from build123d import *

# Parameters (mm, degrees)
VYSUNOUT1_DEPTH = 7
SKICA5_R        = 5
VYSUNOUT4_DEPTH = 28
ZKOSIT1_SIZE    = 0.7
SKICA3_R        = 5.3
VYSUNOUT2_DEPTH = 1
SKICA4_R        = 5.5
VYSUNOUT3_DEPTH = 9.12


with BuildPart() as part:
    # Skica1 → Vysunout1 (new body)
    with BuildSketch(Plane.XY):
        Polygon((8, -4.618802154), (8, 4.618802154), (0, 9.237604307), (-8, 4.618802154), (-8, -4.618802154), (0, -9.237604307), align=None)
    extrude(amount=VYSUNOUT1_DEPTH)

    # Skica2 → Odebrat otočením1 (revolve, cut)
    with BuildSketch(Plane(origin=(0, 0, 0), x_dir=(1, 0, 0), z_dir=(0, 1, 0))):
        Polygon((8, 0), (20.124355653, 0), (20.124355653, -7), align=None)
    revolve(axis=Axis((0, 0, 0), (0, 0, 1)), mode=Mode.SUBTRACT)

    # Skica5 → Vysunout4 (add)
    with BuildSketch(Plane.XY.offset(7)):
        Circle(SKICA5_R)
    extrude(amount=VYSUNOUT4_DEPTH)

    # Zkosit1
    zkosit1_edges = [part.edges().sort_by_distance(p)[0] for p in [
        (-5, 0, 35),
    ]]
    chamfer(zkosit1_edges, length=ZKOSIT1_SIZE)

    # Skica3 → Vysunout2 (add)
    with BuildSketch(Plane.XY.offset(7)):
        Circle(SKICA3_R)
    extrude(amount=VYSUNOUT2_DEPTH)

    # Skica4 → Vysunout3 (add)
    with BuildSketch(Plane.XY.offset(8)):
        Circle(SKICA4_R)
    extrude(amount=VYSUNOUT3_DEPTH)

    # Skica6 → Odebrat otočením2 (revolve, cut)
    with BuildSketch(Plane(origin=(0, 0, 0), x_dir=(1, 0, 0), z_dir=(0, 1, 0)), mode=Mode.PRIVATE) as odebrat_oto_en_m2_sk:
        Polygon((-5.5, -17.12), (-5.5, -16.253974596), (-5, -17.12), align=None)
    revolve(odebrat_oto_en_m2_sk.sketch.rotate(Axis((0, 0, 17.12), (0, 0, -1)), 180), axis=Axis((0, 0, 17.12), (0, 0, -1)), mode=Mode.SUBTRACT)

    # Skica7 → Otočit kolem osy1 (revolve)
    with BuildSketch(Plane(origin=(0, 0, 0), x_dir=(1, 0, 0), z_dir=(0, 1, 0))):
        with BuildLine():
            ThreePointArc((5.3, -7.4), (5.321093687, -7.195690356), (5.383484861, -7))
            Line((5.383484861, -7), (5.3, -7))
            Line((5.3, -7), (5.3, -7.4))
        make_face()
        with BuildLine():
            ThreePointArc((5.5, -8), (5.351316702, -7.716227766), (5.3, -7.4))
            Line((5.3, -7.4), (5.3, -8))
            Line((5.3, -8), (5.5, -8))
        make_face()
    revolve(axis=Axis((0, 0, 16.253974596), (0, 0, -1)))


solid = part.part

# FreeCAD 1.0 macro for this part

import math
import FreeCAD as App
import Part
import Sketcher
Q = App.Units.Quantity


def edges_at(feature, points):
    """Names of the edges that pass closest to the given points."""
    edges = feature.Shape.Edges
    near = lambda p: min(range(len(edges)), key=lambda i: edges[i].distToShape(Part.Vertex(*p))[0])
    return sorted({f"Edge{near(p) + 1}" for p in points})

doc = App.newDocument("Part")
body = doc.addObject("PartDesign::Body", "Body")

# Sketch on XY plane
sketch1 = body.newObject("Sketcher::SketchObject", "Sketch")
sketch1.AttachmentSupport = (doc.getObject("XY_Plane"), [""])
sketch1.MapMode = "FlatFace"
sketch1.addGeometry(Part.LineSegment(App.Vector(8, -5, 0), App.Vector(8, 5, 0)), False)
sketch1.addGeometry(Part.LineSegment(App.Vector(8, 5, 0), App.Vector(0, 9, 0)), False)
sketch1.addGeometry(Part.LineSegment(App.Vector(0, 9, 0), App.Vector(-8, 5, 0)), False)
sketch1.addGeometry(Part.LineSegment(App.Vector(-8, 5, 0), App.Vector(-8, -5, 0)), False)
sketch1.addGeometry(Part.LineSegment(App.Vector(-8, -5, 0), App.Vector(0, -9, 0)), False)
sketch1.addGeometry(Part.LineSegment(App.Vector(0, -9, 0), App.Vector(8, -5, 0)), False)
sketch1.addConstraint(Sketcher.Constraint("Coincident", 0, 2, 1, 1))
sketch1.addConstraint(Sketcher.Constraint("Coincident", 1, 2, 2, 1))
sketch1.addConstraint(Sketcher.Constraint("Coincident", 2, 2, 3, 1))
sketch1.addConstraint(Sketcher.Constraint("Coincident", 3, 2, 4, 1))
sketch1.addConstraint(Sketcher.Constraint("Coincident", 4, 2, 5, 1))
sketch1.addConstraint(Sketcher.Constraint("Coincident", 5, 2, 0, 1))
sketch1.addConstraint(Sketcher.Constraint("Vertical", 0))
sketch1.addConstraint(Sketcher.Constraint("Vertical", 3))
sketch1.addConstraint(Sketcher.Constraint("Symmetric", 0, 2, 3, 2, -1, 1))
sketch1.addConstraint(Sketcher.Constraint("Symmetric", 1, 2, 4, 2, -1, 1))
sketch1.addConstraint(Sketcher.Constraint("PointOnObject", 1, 2, -2))
sketch1.addConstraint(Sketcher.Constraint("Parallel", 2, 5))
sketch1.addConstraint(Sketcher.Constraint("Horizontal", 0, 2, 2, 2))
sketch1.addConstraint(Sketcher.Constraint("Angle", 1, Q("150 deg")))
sketch1.addConstraint(Sketcher.Constraint("DistanceX", -1, 1, 0, 2, 8.0))
sketch1.addConstraint(Sketcher.Constraint("DistanceY", 0, 1, 0, 2, 9.237604))
pad1 = body.newObject("PartDesign::Pad", "Pad")
pad1.Profile = sketch1
pad1.Length = 7

# Sketch on XZ plane
sketch2 = body.newObject("Sketcher::SketchObject", "Sketch001")
sketch2.AttachmentSupport = (doc.getObject("XZ_Plane"), [""])
sketch2.MapMode = "FlatFace"
sketch2.addGeometry(Part.LineSegment(App.Vector(20, 0, 0), App.Vector(8, 0, 0)), False)
sketch2.addGeometry(Part.LineSegment(App.Vector(8, 0, 0), App.Vector(20, 7, 0)), False)
sketch2.addGeometry(Part.LineSegment(App.Vector(20, 7, 0), App.Vector(20, 0, 0)), False)
sketch2.addConstraint(Sketcher.Constraint("Coincident", 0, 2, 1, 1))
sketch2.addConstraint(Sketcher.Constraint("Coincident", 1, 2, 2, 1))
sketch2.addConstraint(Sketcher.Constraint("Coincident", 2, 2, 0, 1))
sketch2.addConstraint(Sketcher.Constraint("Horizontal", 0))
sketch2.addConstraint(Sketcher.Constraint("Vertical", 2))
sketch2.addConstraint(Sketcher.Constraint("PointOnObject", 0, 2, -1))
sketch2.addConstraint(Sketcher.Constraint("DistanceY", 2, 2, 2, 1, 7.0))
sketch2.addConstraint(Sketcher.Constraint("Angle", 1, Q("30 deg")))
sketch2.addConstraint(Sketcher.Constraint("DistanceX", -1, 1, 0, 2, 8.0))
groove = body.newObject("PartDesign::Groove", "Groove")
groove.Profile = sketch2
groove.ReferenceAxis = (sketch2, ["V_Axis"])
groove.Angle = 360

# Sketch on XY plane
sketch3 = body.newObject("Sketcher::SketchObject", "Sketch002")
sketch3.AttachmentSupport = (doc.getObject("XY_Plane"), [""])
sketch3.MapMode = "FlatFace"
sketch3.AttachmentOffset = App.Placement(App.Vector(0, 0, 7), App.Rotation())
sketch3.addGeometry(Part.Circle(App.Vector(0, 0, 0), App.Vector(0, 0, 1), 5), False)
sketch3.addConstraint(Sketcher.Constraint("Coincident", 0, 3, -1, 1))
sketch3.addConstraint(Sketcher.Constraint("Diameter", 0, 10.0))
pad2 = body.newObject("PartDesign::Pad", "Pad001")
pad2.Profile = sketch3
pad2.Length = 28
doc.recompute()

chamfer = body.newObject("PartDesign::Chamfer", "Chamfer")
chamfer.Base = (pad2, edges_at(pad2, [(-5, 0, 35)]))
chamfer.Size = 0.7

# Sketch on XY plane
sketch4 = body.newObject("Sketcher::SketchObject", "Sketch003")
sketch4.AttachmentSupport = (doc.getObject("XY_Plane"), [""])
sketch4.MapMode = "FlatFace"
sketch4.AttachmentOffset = App.Placement(App.Vector(0, 0, 7), App.Rotation())
sketch4.addGeometry(Part.Circle(App.Vector(0, 0, 0), App.Vector(0, 0, 1), 5), False)
sketch4.addConstraint(Sketcher.Constraint("Coincident", 0, 3, -1, 1))
sketch4.addConstraint(Sketcher.Constraint("Diameter", 0, 10.6))
pad3 = body.newObject("PartDesign::Pad", "Pad002")
pad3.Profile = sketch4
pad3.Length = 1

# Sketch on XY plane
sketch5 = body.newObject("Sketcher::SketchObject", "Sketch004")
sketch5.AttachmentSupport = (doc.getObject("XY_Plane"), [""])
sketch5.MapMode = "FlatFace"
sketch5.AttachmentOffset = App.Placement(App.Vector(0, 0, 8), App.Rotation())
sketch5.addGeometry(Part.Circle(App.Vector(0, 0, 0), App.Vector(0, 0, 1), 6), False)
sketch5.addConstraint(Sketcher.Constraint("Coincident", 0, 3, -1, 1))
sketch5.addConstraint(Sketcher.Constraint("Diameter", 0, 11.0))
pad4 = body.newObject("PartDesign::Pad", "Pad003")
pad4.Profile = sketch5
pad4.Length = 9.12

# Sketch on XZ plane
sketch6 = body.newObject("Sketcher::SketchObject", "Sketch005")
sketch6.AttachmentSupport = (doc.getObject("XZ_Plane"), [""])
sketch6.MapMode = "FlatFace"
sketch6.addGeometry(Part.LineSegment(App.Vector(-5.5, 16.3, 0), App.Vector(-5.5, 17.1, 0)), False)
sketch6.addGeometry(Part.LineSegment(App.Vector(-5.5, 17.1, 0), App.Vector(-5, 17.1, 0)), False)
sketch6.addGeometry(Part.LineSegment(App.Vector(-5, 17.1, 0), App.Vector(-5.5, 16.3, 0)), False)
sketch6.addConstraint(Sketcher.Constraint("Coincident", 0, 2, 1, 1))
sketch6.addConstraint(Sketcher.Constraint("Coincident", 1, 2, 2, 1))
sketch6.addConstraint(Sketcher.Constraint("Coincident", 2, 2, 0, 1))
sketch6.addConstraint(Sketcher.Constraint("Vertical", 0))
sketch6.addConstraint(Sketcher.Constraint("Horizontal", 1))
sketch6.addConstraint(Sketcher.Constraint("Angle", 2, Q("-120 deg")))
sketch6.addConstraint(Sketcher.Constraint("Distance", 2, 1.0))
sketch6.addConstraint(Sketcher.Constraint("DistanceX", 1, 2, -1, 1, 5.0))
sketch6.addConstraint(Sketcher.Constraint("DistanceY", -1, 1, 0, 2, 17.12))
groove2 = body.newObject("PartDesign::Groove", "Groove001")
groove2.Profile = sketch6
groove2.ReferenceAxis = (sketch6, ["V_Axis"])
groove2.Angle = 360

# Sketch on XZ plane
sketch7 = body.newObject("Sketcher::SketchObject", "Sketch006")
sketch7.AttachmentSupport = (doc.getObject("XZ_Plane"), [""])
sketch7.MapMode = "FlatFace"
sketch7.addGeometry(Part.ArcOfCircle(Part.Circle(App.Vector(6.3, 7.4, 0), App.Vector(0, 0, 1), 1), math.radians(180), math.radians(204)), False)
sketch7.addGeometry(Part.LineSegment(App.Vector(5.38, 7, 0), App.Vector(5.3, 7, 0)), False)
sketch7.addGeometry(Part.LineSegment(App.Vector(5.3, 7, 0), App.Vector(5.3, 7.4, 0)), False)
sketch7.addGeometry(Part.ArcOfCircle(Part.Circle(App.Vector(6.3, 7.4, 0), App.Vector(0, 0, 1), 1), math.radians(143), math.radians(180)), False)
sketch7.addGeometry(Part.LineSegment(App.Vector(5.3, 7.4, 0), App.Vector(5.3, 8, 0)), False)
sketch7.addGeometry(Part.LineSegment(App.Vector(5.3, 8, 0), App.Vector(5.5, 8, 0)), False)
sketch7.addConstraint(Sketcher.Constraint("Coincident", 0, 2, 1, 1))
sketch7.addConstraint(Sketcher.Constraint("Coincident", 1, 2, 2, 1))
sketch7.addConstraint(Sketcher.Constraint("Tangent", 2, 2, 0, 1))
sketch7.addConstraint(Sketcher.Constraint("Tangent", 3, 2, 4, 1))
sketch7.addConstraint(Sketcher.Constraint("Coincident", 4, 2, 5, 1))
sketch7.addConstraint(Sketcher.Constraint("Coincident", 5, 2, 3, 1))
sketch7.addConstraint(Sketcher.Constraint("Horizontal", 1))
sketch7.addConstraint(Sketcher.Constraint("Vertical", 2))
sketch7.addConstraint(Sketcher.Constraint("Vertical", 4))
sketch7.addConstraint(Sketcher.Constraint("Horizontal", 5))
sketch7.addConstraint(Sketcher.Constraint("Coincident", 3, 3, 0, 3))
sketch7.addConstraint(Sketcher.Constraint("Equal", 0, 3))
sketch7.addConstraint(Sketcher.Constraint("Radius", 0, 1.0))
sketch7.addConstraint(Sketcher.Constraint("DistanceX", 5, 1, 5, 2, 0.2))
sketch7.addConstraint(Sketcher.Constraint("DistanceY", 2, 1, 2, 2, 0.4))
sketch7.addConstraint(Sketcher.Constraint("DistanceY", -1, 1, 0, 2, 7.0))
sketch7.addConstraint(Sketcher.Constraint("DistanceX", -1, 1, 0, 3, 6.3))
revolution = body.newObject("PartDesign::Revolution", "Revolution")
revolution.Profile = sketch7
revolution.ReferenceAxis = (sketch7, ["V_Axis"])
revolution.Angle = 360

doc.recompute()
